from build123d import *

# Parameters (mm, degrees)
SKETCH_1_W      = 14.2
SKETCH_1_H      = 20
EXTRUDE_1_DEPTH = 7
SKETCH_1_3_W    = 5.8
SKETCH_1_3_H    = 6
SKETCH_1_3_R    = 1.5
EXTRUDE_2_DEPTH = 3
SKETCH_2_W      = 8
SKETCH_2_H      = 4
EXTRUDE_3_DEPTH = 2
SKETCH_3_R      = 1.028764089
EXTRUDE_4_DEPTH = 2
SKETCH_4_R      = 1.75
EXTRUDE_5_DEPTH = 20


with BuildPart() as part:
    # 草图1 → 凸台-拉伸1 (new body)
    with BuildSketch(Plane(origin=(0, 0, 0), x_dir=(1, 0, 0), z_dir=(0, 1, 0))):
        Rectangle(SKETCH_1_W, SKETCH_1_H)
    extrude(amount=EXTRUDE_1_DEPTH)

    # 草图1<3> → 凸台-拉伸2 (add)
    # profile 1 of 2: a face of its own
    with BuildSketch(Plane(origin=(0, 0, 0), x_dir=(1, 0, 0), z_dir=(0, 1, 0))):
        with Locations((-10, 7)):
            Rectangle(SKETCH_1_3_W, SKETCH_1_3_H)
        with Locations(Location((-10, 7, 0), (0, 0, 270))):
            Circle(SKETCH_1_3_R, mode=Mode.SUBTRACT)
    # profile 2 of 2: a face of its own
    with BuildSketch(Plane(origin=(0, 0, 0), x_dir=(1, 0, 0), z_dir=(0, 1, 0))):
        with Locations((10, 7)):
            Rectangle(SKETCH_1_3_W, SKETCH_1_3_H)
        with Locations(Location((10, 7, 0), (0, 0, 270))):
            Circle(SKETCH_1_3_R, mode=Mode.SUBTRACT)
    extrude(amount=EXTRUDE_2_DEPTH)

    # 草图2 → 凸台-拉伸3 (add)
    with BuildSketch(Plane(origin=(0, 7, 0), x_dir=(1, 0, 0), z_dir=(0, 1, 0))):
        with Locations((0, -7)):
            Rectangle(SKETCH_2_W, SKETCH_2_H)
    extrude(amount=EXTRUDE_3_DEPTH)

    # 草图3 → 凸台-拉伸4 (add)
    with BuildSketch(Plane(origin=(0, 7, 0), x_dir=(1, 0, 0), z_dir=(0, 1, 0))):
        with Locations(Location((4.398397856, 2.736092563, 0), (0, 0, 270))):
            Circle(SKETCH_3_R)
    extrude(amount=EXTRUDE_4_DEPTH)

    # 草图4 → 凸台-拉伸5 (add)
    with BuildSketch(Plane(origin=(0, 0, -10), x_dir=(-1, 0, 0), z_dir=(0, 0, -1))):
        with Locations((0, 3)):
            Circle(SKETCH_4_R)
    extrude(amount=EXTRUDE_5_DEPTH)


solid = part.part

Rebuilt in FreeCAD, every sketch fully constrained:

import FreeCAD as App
import Part
import Sketcher

V = App.Vector

doc = App.newDocument("Part")
body = doc.addObject("PartDesign::Body", "Body")

# Sketch on XZ plane
sketch1 = body.newObject("Sketcher::SketchObject", "Sketch")
sketch1.AttachmentSupport = (doc.getObject("XZ_Plane"), [""])
sketch1.MapMode = "FlatFace"
sketch1.addGeometry([
    Part.LineSegment(V(-7, -10, 0), V(-7, 10, 0)),
    Part.LineSegment(V(-7, 10, 0), V(7, 10, 0)),
    Part.LineSegment(V(7, 10, 0), V(7, -10, 0)),
    Part.LineSegment(V(7, -10, 0), V(-7, -10, 0)),
], False)
sketch1.addConstraint([
    Sketcher.Constraint("Coincident", 0, 2, 1, 1),
    Sketcher.Constraint("Coincident", 1, 2, 2, 1),
    Sketcher.Constraint("Coincident", 2, 2, 3, 1),
    Sketcher.Constraint("Coincident", 3, 2, 0, 1),
    Sketcher.Constraint("Vertical", 0),
    Sketcher.Constraint("Horizontal", 1),
    Sketcher.Constraint("Vertical", 2),
    Sketcher.Constraint("Horizontal", 3),
    Sketcher.Constraint("Symmetric", 0, 2, 2, 2, -1, 1),
    Sketcher.Constraint("DistanceY", 0, 1, 0, 2, 20.0),
    Sketcher.Constraint("DistanceX", 1, 1, 1, 2, 14.2),
])
pad1 = body.newObject("PartDesign::Pad", "Pad")
pad1.Profile = sketch1
pad1.Length = 7
pad1.Reversed = True

# Sketch on XZ plane
sketch2 = body.newObject("Sketcher::SketchObject", "Sketch001")
sketch2.AttachmentSupport = (doc.getObject("XZ_Plane"), [""])
sketch2.MapMode = "FlatFace"
sketch2.addGeometry([
    Part.LineSegment(V(-12.9, -10, 0), V(-12.9, -4, 0)),  # 0
    Part.LineSegment(V(-12.9, -4, 0), V(-7.1, -4, 0)),  # 1
    Part.LineSegment(V(-7.1, -4, 0), V(-7.1, -10, 0)),  # 2
    Part.LineSegment(V(-7.1, -10, 0), V(-12.9, -10, 0)),  # 3
    Part.Circle(V(-10, -7, 0), V(0, 0, 1), 1.5),  # 4
    Part.LineSegment(V(7.1, -10, 0), V(7.1, -4, 0)),  # 5
    Part.LineSegment(V(7.1, -4, 0), V(12.9, -4, 0)),  # 6
    Part.LineSegment(V(12.9, -4, 0), V(12.9, -10, 0)),  # 7
    Part.LineSegment(V(12.9, -10, 0), V(7.1, -10, 0)),  # 8
    Part.Circle(V(10, -7, 0), V(0, 0, 1), 1.5),  # 9
], False)
sketch2.addConstraint([
    Sketcher.Constraint("Coincident", 0, 2, 1, 1),
    Sketcher.Constraint("Coincident", 1, 2, 2, 1),
    Sketcher.Constraint("Coincident", 2, 2, 3, 1),
    Sketcher.Constraint("Coincident", 3, 2, 0, 1),
    Sketcher.Constraint("Coincident", 5, 2, 6, 1),
    Sketcher.Constraint("Coincident", 6, 2, 7, 1),
    Sketcher.Constraint("Coincident", 7, 2, 8, 1),
    Sketcher.Constraint("Coincident", 8, 2, 5, 1),
    Sketcher.Constraint("Vertical", 0),
    Sketcher.Constraint("Horizontal", 1),
    Sketcher.Constraint("Vertical", 2),
    Sketcher.Constraint("Horizontal", 3),
    Sketcher.Constraint("Vertical", 5),
    Sketcher.Constraint("Horizontal", 6),
    Sketcher.Constraint("Vertical", 7),
    Sketcher.Constraint("Horizontal", 8),
    Sketcher.Constraint("Equal", 4, 9),
    Sketcher.Constraint("Symmetric", 4, 3, 9, 3, -2),
    Sketcher.Constraint("Symmetric", 1, 2, 5, 2, -2),
    Sketcher.Constraint("Symmetric", 3, 2, 7, 2, -2),
    Sketcher.Constraint("Diameter", 4, 3.0),
    Sketcher.Constraint("DistanceY", 0, 1, 0, 2, 6.0),
    Sketcher.Constraint("DistanceX", 1, 1, 1, 2, 5.8),
    Sketcher.Constraint("DistanceX", 4, 3, -1, 1, 10.0),
    Sketcher.Constraint("DistanceY", 4, 3, -1, 1, 7.0),
    Sketcher.Constraint("DistanceY", 0, 2, -1, 1, 4.0),
    Sketcher.Constraint("DistanceX", 0, 2, 5, 2, 20.0),
])
pad2 = body.newObject("PartDesign::Pad", "Pad001")
pad2.Profile = sketch2
pad2.Length = 3
pad2.Reversed = True

# Sketch on XZ plane
sketch3 = body.newObject("Sketcher::SketchObject", "Sketch002")
sketch3.AttachmentSupport = (doc.getObject("XZ_Plane"), [""])
sketch3.MapMode = "FlatFace"
sketch3.AttachmentOffset = App.Placement(V(0, 0, -7), App.Rotation())
sketch3.addGeometry([
    Part.LineSegment(V(-4, 5, 0), V(-4, 9, 0)),
    Part.LineSegment(V(-4, 9, 0), V(4, 9, 0)),
    Part.LineSegment(V(4, 9, 0), V(4, 5, 0)),
    Part.LineSegment(V(4, 5, 0), V(-4, 5, 0)),
], False)
sketch3.addConstraint([
    Sketcher.Constraint("Coincident", 0, 2, 1, 1),
    Sketcher.Constraint("Coincident", 1, 2, 2, 1),
    Sketcher.Constraint("Coincident", 2, 2, 3, 1),
    Sketcher.Constraint("Coincident", 3, 2, 0, 1),
    Sketcher.Constraint("Vertical", 0),
    Sketcher.Constraint("Horizontal", 1),
    Sketcher.Constraint("Vertical", 2),
    Sketcher.Constraint("Horizontal", 3),
    Sketcher.Constraint("DistanceX", 1, 1, 1, 2, 8.0),
    Sketcher.Constraint("DistanceY", 0, 1, 0, 2, 4.0),
    Sketcher.Constraint("DistanceX", 0, 2, -1, 1, 4.0),
    Sketcher.Constraint("DistanceY", -1, 1, 0, 2, 9.0),
])
pad3 = body.newObject("PartDesign::Pad", "Pad002")
pad3.Profile = sketch3
pad3.Length = 2
pad3.Reversed = True

# Sketch on XZ plane
sketch4 = body.newObject("Sketcher::SketchObject", "Sketch003")
sketch4.AttachmentSupport = (doc.getObject("XZ_Plane"), [""])
sketch4.MapMode = "FlatFace"
sketch4.AttachmentOffset = App.Placement(V(0, 0, -7), App.Rotation())
sketch4.addGeometry(Part.Circle(V(4.4, -2.7, 0), V(0, 0, 1), 1), False)
sketch4.addConstraint([
    Sketcher.Constraint("Diameter", 0, 2.057528),
    Sketcher.Constraint("DistanceX", -1, 1, 0, 3, 4.398398),
    Sketcher.Constraint("DistanceY", 0, 3, -1, 1, 2.736093),
])
pad4 = body.newObject("PartDesign::Pad", "Pad003")
pad4.Profile = sketch4
pad4.Length = 2
pad4.Reversed = True

# Sketch on XY plane
sketch5 = body.newObject("Sketcher::SketchObject", "Sketch004")
sketch5.AttachmentSupport = (doc.getObject("XY_Plane"), [""])
sketch5.MapMode = "FlatFace"
sketch5.AttachmentOffset = App.Placement(V(0, 0, -10), App.Rotation())
sketch5.addGeometry(Part.Circle(V(0, 3, 0), V(0, 0, 1), 1.8), False)
sketch5.addConstraint([
    Sketcher.Constraint("PointOnObject", 0, 3, -2),
    Sketcher.Constraint("Diameter", 0, 3.5),
    Sketcher.Constraint("DistanceY", -1, 1, 0, 3, 3.0),
])
pad5 = body.newObject("PartDesign::Pad", "Pad004")
pad5.Profile = sketch5
pad5.Length = 20
pad5.Reversed = True

doc.recompute()
